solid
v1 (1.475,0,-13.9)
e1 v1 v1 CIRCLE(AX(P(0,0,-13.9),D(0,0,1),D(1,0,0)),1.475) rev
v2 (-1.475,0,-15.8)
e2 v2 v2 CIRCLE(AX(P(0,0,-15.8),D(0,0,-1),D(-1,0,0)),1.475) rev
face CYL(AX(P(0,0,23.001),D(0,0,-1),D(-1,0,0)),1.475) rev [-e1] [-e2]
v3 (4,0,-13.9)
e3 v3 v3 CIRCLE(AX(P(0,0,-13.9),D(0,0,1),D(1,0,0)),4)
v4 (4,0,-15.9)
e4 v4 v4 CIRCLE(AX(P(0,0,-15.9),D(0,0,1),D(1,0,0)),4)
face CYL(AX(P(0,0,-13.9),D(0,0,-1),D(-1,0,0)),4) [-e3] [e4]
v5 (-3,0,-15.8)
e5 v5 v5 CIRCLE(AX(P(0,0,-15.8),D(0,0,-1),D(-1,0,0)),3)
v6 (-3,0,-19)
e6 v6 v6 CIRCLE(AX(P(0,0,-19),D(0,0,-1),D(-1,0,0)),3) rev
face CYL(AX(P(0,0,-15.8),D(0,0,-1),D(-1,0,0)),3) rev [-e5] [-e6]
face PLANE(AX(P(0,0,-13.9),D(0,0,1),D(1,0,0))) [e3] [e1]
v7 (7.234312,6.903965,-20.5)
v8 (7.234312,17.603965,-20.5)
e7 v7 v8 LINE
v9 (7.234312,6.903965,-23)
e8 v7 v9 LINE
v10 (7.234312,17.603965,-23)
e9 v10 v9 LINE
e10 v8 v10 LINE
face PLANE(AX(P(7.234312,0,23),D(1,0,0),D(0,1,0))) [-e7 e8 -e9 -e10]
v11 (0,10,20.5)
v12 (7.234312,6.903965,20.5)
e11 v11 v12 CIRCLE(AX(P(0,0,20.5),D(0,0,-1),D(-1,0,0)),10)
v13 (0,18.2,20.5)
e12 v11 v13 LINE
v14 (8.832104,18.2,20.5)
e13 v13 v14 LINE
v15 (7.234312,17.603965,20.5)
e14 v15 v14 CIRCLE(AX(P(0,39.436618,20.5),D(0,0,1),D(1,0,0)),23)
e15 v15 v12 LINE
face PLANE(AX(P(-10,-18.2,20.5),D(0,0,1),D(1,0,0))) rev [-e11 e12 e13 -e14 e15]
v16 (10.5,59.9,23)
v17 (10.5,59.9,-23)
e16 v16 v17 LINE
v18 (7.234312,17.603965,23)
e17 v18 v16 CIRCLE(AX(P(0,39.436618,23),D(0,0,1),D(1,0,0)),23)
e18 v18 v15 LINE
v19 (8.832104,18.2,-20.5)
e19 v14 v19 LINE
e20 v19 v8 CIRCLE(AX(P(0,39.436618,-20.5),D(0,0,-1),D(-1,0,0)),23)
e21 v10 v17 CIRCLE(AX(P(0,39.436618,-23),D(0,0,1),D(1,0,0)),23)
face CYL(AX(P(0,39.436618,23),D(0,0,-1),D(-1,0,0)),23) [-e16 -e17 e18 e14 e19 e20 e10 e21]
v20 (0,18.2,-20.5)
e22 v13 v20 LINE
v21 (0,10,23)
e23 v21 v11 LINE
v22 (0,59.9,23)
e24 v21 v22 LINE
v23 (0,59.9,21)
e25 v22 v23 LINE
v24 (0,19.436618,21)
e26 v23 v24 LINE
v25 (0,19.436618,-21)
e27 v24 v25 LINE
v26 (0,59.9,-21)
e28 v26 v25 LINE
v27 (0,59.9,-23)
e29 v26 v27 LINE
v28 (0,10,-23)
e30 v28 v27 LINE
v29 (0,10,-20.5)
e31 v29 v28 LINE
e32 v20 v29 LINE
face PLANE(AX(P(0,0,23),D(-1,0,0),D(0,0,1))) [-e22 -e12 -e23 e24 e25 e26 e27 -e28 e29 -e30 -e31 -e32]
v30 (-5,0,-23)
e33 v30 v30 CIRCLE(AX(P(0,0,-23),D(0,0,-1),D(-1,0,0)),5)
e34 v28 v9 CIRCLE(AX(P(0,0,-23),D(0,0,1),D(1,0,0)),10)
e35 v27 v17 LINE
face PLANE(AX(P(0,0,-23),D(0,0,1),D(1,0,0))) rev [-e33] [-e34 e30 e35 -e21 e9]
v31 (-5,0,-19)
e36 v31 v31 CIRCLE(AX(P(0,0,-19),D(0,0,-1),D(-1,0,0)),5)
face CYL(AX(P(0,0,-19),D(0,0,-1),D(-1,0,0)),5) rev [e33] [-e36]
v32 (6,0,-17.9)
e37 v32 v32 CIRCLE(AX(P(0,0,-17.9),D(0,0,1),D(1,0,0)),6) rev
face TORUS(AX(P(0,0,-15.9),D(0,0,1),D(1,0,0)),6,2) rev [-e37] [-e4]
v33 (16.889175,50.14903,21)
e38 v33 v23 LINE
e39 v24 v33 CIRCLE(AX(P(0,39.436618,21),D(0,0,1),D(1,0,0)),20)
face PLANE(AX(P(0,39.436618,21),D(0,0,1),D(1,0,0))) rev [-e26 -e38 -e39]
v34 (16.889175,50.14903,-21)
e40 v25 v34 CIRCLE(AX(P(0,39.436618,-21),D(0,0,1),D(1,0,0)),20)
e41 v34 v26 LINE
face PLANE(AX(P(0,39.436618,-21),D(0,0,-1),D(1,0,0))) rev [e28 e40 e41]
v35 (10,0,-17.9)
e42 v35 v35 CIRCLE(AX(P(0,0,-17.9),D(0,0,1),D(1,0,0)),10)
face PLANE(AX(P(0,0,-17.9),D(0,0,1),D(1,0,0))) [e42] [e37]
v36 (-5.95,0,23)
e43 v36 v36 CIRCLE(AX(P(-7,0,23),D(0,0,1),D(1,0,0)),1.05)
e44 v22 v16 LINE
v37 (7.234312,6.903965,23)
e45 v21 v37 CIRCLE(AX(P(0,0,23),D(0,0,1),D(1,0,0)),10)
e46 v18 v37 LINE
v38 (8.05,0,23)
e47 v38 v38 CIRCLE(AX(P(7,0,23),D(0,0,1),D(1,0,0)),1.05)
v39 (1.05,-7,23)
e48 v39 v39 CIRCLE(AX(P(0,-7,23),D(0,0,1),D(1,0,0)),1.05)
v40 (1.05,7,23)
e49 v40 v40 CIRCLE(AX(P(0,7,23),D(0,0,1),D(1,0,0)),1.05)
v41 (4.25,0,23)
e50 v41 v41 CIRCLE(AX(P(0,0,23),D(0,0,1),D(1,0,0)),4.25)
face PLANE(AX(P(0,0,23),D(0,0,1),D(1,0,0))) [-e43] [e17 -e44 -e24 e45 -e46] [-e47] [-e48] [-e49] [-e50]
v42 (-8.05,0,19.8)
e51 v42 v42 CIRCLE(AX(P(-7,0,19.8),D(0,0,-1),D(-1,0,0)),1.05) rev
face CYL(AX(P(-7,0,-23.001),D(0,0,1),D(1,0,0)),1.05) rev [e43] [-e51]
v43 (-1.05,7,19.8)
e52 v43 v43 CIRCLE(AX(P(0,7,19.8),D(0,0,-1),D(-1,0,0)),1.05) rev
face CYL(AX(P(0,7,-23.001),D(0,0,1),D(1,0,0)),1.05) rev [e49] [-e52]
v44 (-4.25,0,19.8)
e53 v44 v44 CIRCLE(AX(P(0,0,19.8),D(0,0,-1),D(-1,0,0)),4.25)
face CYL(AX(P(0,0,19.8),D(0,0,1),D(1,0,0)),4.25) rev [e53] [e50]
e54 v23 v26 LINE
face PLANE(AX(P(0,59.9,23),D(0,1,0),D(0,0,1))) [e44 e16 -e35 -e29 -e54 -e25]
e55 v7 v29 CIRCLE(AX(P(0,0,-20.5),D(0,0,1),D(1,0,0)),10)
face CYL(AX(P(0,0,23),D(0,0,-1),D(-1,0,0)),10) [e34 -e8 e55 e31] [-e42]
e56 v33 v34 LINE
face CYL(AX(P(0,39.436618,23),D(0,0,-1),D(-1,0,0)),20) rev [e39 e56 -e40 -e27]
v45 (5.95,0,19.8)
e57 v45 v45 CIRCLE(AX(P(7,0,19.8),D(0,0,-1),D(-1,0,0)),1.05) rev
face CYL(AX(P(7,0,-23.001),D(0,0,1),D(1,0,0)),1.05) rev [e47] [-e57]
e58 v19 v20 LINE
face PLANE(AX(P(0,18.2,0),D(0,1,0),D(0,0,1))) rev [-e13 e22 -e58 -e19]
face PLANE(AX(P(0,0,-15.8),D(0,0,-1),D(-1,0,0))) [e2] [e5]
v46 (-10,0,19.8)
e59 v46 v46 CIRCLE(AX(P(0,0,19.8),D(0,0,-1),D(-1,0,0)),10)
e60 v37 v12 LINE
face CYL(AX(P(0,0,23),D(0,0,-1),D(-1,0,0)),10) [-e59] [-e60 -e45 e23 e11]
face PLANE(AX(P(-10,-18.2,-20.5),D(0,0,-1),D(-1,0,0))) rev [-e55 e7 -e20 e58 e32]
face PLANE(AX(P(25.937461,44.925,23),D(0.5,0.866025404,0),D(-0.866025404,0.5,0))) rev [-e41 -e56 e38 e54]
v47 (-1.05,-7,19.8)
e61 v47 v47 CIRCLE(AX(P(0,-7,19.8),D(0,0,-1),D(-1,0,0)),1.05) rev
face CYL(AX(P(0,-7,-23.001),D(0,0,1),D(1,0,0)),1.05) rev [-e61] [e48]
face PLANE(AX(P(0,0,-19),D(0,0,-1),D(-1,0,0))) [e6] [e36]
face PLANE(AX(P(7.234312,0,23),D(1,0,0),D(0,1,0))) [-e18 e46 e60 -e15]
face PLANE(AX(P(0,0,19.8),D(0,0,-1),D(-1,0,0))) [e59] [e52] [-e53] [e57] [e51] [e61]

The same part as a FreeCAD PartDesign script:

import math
import FreeCAD as App
import Part
import Sketcher

V = App.Vector
Q = App.Units.Quantity


def edges_at(feature, points):
    """Names of the edges that pass closest to the given points."""
    edges = feature.Shape.Edges
    near = lambda p: min(range(len(edges)), key=lambda i: edges[i].distToShape(Part.Vertex(*p))[0])
    return sorted({f"Edge{near(p) + 1}" for p in points})

doc = App.newDocument("Part")
params = doc.addObject("Spreadsheet::Sheet", "Params")
for row, (alias, value) in enumerate([
    ("sketch1_radius", "20 mm"),
    ("sketch1_radius2", "10 mm"),
    ("sketch1_radius3", "23 mm"),
    ("sketch1_width", "10.5 mm"),
    ("sketch1_height", "10.7 mm"),
    ("pad1_length", "46 mm"),
    ("sketch2_radius", "20 mm"),
    ("pad2_length", "2 mm"),
    ("sketch3_width", "20 mm"),
    ("sketch3_height", "41 mm"),
    ("pocket1_length", "36.4 mm"),
    ("sketch4_diameter", "20 mm"),
    ("sketch4_diameter2", "8.5 mm"),
    ("pad3_length", "0.7 mm"),
    ("sketch5_diameter", "2.1 mm"),
    ("sketch6_diameter", "2.1 mm"),
    ("sketch7_diameter", "2.1 mm"),
    ("sketch8_diameter", "2.1 mm"),
    ("sketch9_diameter", "8.5 mm"),
    ("sketch10_diameter", "20 mm"),
    ("pad4_length", "6.1 mm"),
    ("sketch11_diameter", "8 mm"),
    ("pad5_length", "0.5 mm"),
    ("sketch12_diameter", "6 mm"),
    ("pocket7_length", "7.2 mm"),
    ("sketch13_diameter", "2.95 mm"),
    ("pocket8_length", "9.1 mm"),
    ("sketch14_diameter", "10 mm"),
    ("pocket9_length", "4 mm"),
    ("sketch15_diameter", "20 mm"),
    ("sketch15_diameter2", "8 mm"),
    ("pocket10_length", "3.5 mm"),
    ("fillet_radius", "2 mm"),
], start=1):
    params.set(f"A{row}", alias)
    params.set(f"B{row}", "=" + value)
    params.setAlias(f"B{row}", alias)

body = doc.addObject("PartDesign::Body", "Body")

# Sketch on XY plane
sketch1 = body.newObject("Sketcher::SketchObject", "Sketch")
sketch1.AttachmentSupport = (doc.getObject("XY_Plane"), [""])
sketch1.MapMode = "FlatFace"
sketch1.addGeometry(Part.LineSegment(V(0, 60, 0), V(17, 50, 0)), False)
sketch1.addGeometry(Part.ArcOfCircle(Part.Circle(V(0, 39, 0), V(0, 0, 1), 20), math.radians(-90), math.radians(32)), False)
sketch1.addGeometry(Part.LineSegment(V(0, 19, 0), V(0, 10, 0)), False)
sketch1.addGeometry(Part.ArcOfCircle(Part.Circle(V(0, 0, 0), V(0, 0, 1), 10), math.radians(90), math.radians(404)), False)
sketch1.addGeometry(Part.LineSegment(V(7, 7, 0), V(7, 18, 0)), False)
sketch1.addGeometry(Part.ArcOfCircle(Part.Circle(V(0, 39, 0), V(0, 0, 1), 23), math.radians(-72), math.radians(63)), False)
sketch1.addGeometry(Part.LineSegment(V(10, 60, 0), V(0, 60, 0)), False)
sketch1.addConstraint(Sketcher.Constraint("Coincident", 0, 2, 1, 2))
sketch1.addConstraint(Sketcher.Constraint("Coincident", 1, 1, 2, 1))
sketch1.addConstraint(Sketcher.Constraint("Coincident", 2, 2, 3, 1))
sketch1.addConstraint(Sketcher.Constraint("Coincident", 3, 2, 4, 1))
sketch1.addConstraint(Sketcher.Constraint("Coincident", 4, 2, 5, 1))
sketch1.addConstraint(Sketcher.Constraint("Coincident", 5, 2, 6, 1))
sketch1.addConstraint(Sketcher.Constraint("Coincident", 6, 2, 0, 1))
sketch1.addConstraint(Sketcher.Constraint("Vertical", 2))
sketch1.addConstraint(Sketcher.Constraint("Vertical", 4))
sketch1.addConstraint(Sketcher.Constraint("Horizontal", 6))
sketch1.addConstraint(Sketcher.Constraint("Coincident", 3, 3, -1, 1))
sketch1.addConstraint(Sketcher.Constraint("Coincident", 5, 3, 1, 3))
sketch1.addConstraint(Sketcher.Constraint("PointOnObject", 1, 3, -2))
sketch1.addConstraint(Sketcher.Constraint("PointOnObject", 1, 1, -2))
sketch1.addConstraint(Sketcher.Constraint("PointOnObject", 6, 2, -2))
sketch1.addConstraint(Sketcher.Constraint("Radius", 1, 20.0))
sketch1.addConstraint(Sketcher.Constraint("Radius", 3, 10.0))
sketch1.addConstraint(Sketcher.Constraint("Radius", 5, 23.0))
sketch1.addConstraint(Sketcher.Constraint("Angle", 0, Q("-30 deg")))
sketch1.addConstraint(Sketcher.Constraint("DistanceX", 6, 2, 6, 1, 10.5))
sketch1.addConstraint(Sketcher.Constraint("DistanceY", 4, 1, 4, 2, 10.7))
sketch1.addConstraint(Sketcher.Constraint("DistanceY", -1, 1, 5, 2, 59.9))
sketch1.setExpression("Constraints[15]", "Params.sketch1_radius")
sketch1.setExpression("Constraints[16]", "Params.sketch1_radius2")
sketch1.setExpression("Constraints[17]", "Params.sketch1_radius3")
sketch1.setExpression("Constraints[19]", "Params.sketch1_width")
sketch1.setExpression("Constraints[20]", "Params.sketch1_height")
pad1 = body.newObject("PartDesign::Pad", "Pad")
pad1.Profile = sketch1
pad1.setExpression("Length", "Params.pad1_length")
pad1.Midplane = True

# Sketch on XY plane
sketch2 = body.newObject("Sketcher::SketchObject", "Sketch001")
sketch2.AttachmentSupport = (doc.getObject("XY_Plane"), [""])
sketch2.MapMode = "FlatFace"
sketch2.AttachmentOffset = App.Placement(V(0, 0, 23), App.Rotation())
sketch2.addGeometry(Part.LineSegment(V(0, 60, 0), V(0, 19, 0)), False)
sketch2.addGeometry(Part.ArcOfCircle(Part.Circle(V(0, 39, 0), V(0, 0, 1), 20), math.radians(-90), math.radians(32)), False)
sketch2.addGeometry(Part.LineSegment(V(17, 50, 0), V(0, 60, 0)), False)
sketch2.addConstraint(Sketcher.Constraint("Coincident", 0, 2, 1, 1))
sketch2.addConstraint(Sketcher.Constraint("Coincident", 1, 2, 2, 1))
sketch2.addConstraint(Sketcher.Constraint("Coincident", 2, 2, 0, 1))
sketch2.addConstraint(Sketcher.Constraint("Vertical", 0))
sketch2.addConstraint(Sketcher.Constraint("PointOnObject", 1, 3, -2))
sketch2.addConstraint(Sketcher.Constraint("PointOnObject", 0, 2, -2))
sketch2.addConstraint(Sketcher.Constraint("Radius", 1, 20.0))
sketch2.addConstraint(Sketcher.Constraint("Angle", 2, Q("150 deg")))
sketch2.addConstraint(Sketcher.Constraint("DistanceY", -1, 1, 2, 2, 59.9))
sketch2.addConstraint(Sketcher.Constraint("DistanceY", 0, 2, 0, 1, 40.463382))
sketch2.setExpression("Constraints[6]", "Params.sketch2_radius")
pad2 = body.newObject("PartDesign::Pad", "Pad001")
pad2.Profile = sketch2
pad2.setExpression("Length", "Params.pad2_length")
pad2.Reversed = True
doc.recompute()

mirrored = body.newObject("PartDesign::Mirrored", "Mirrored")
mirrored.Originals = [pad2]
mirrored.MirrorPlane = (doc.getObject("XY_Plane"), [""])
body.Tip = mirrored

# Sketch on XZ plane
sketch3 = body.newObject("Sketcher::SketchObject", "Sketch002")
sketch3.AttachmentSupport = (doc.getObject("XZ_Plane"), [""])
sketch3.MapMode = "FlatFace"
sketch3.addGeometry(Part.LineSegment(V(-10, -20, 0), V(-10, 20, 0)), False)
sketch3.addGeometry(Part.LineSegment(V(-10, 20, 0), V(10, 20, 0)), False)
sketch3.addGeometry(Part.LineSegment(V(10, 20, 0), V(10, -20, 0)), False)
sketch3.addGeometry(Part.LineSegment(V(10, -20, 0), V(-10, -20, 0)), False)
sketch3.addConstraint(Sketcher.Constraint("Coincident", 0, 2, 1, 1))
sketch3.addConstraint(Sketcher.Constraint("Coincident", 1, 2, 2, 1))
sketch3.addConstraint(Sketcher.Constraint("Coincident", 2, 2, 3, 1))
sketch3.addConstraint(Sketcher.Constraint("Coincident", 3, 2, 0, 1))
sketch3.addConstraint(Sketcher.Constraint("Vertical", 0))
sketch3.addConstraint(Sketcher.Constraint("Horizontal", 1))
sketch3.addConstraint(Sketcher.Constraint("Vertical", 2))
sketch3.addConstraint(Sketcher.Constraint("Horizontal", 3))
sketch3.addConstraint(Sketcher.Constraint("Symmetric", 0, 2, 2, 2, -1, 1))
sketch3.addConstraint(Sketcher.Constraint("DistanceX", 1, 1, 1, 2, 20.0))
sketch3.addConstraint(Sketcher.Constraint("DistanceY", 0, 1, 0, 2, 41.0))
sketch3.setExpression("Constraints[9]", "Params.sketch3_width")
sketch3.setExpression("Constraints[10]", "Params.sketch3_height")
pocket1 = body.newObject("PartDesign::Pocket", "Pocket")
pocket1.Profile = sketch3
pocket1.setExpression("Length", "Params.pocket1_length")
pocket1.Midplane = True

# Sketch on XY plane
sketch4 = body.newObject("Sketcher::SketchObject", "Sketch003")
sketch4.AttachmentSupport = (doc.getObject("XY_Plane"), [""])
sketch4.MapMode = "FlatFace"
sketch4.AttachmentOffset = App.Placement(V(0, 0, 20.5), App.Rotation())
sketch4.addGeometry(Part.Circle(V(0, 0, 0), V(0, 0, 1), 10), False)
sketch4.addGeometry(Part.Circle(V(0, 0, 0), V(0, 0, 1), 4.2), False)
sketch4.addConstraint(Sketcher.Constraint("Coincident", 0, 3, -1, 1))
sketch4.addConstraint(Sketcher.Constraint("Coincident", 1, 3, -1, 1))
sketch4.addConstraint(Sketcher.Constraint("Diameter", 0, 20.0))
sketch4.addConstraint(Sketcher.Constraint("Diameter", 1, 8.5))
sketch4.setExpression("Constraints[2]", "Params.sketch4_diameter")
sketch4.setExpression("Constraints[3]", "Params.sketch4_diameter2")
pad3 = body.newObject("PartDesign::Pad", "Pad002")
pad3.Profile = sketch4
pad3.setExpression("Length", "Params.pad3_length")
pad3.Reversed = True

# Sketch on XY plane
sketch5 = body.newObject("Sketcher::SketchObject", "Sketch004")
sketch5.AttachmentSupport = (doc.getObject("XY_Plane"), [""])
sketch5.MapMode = "FlatFace"
sketch5.AttachmentOffset = App.Placement(V(0, 0, 23), App.Rotation())
sketch5.addGeometry(Part.Circle(V(0, 7, 0), V(0, 0, 1), 1.1), False)
sketch5.addConstraint(Sketcher.Constraint("PointOnObject", 0, 3, -2))
sketch5.addConstraint(Sketcher.Constraint("Diameter", 0, 2.1))
sketch5.addConstraint(Sketcher.Constraint("DistanceY", -1, 1, 0, 3, 7.0))
sketch5.setExpression("Constraints[1]", "Params.sketch5_diameter")
pocket2 = body.newObject("PartDesign::Pocket", "Pocket001")
pocket2.Profile = sketch5
pocket2.Type = "UpToFirst"

# Sketch on XY plane
sketch6 = body.newObject("Sketcher::SketchObject", "Sketch005")
sketch6.AttachmentSupport = (doc.getObject("XY_Plane"), [""])
sketch6.MapMode = "FlatFace"
sketch6.AttachmentOffset = App.Placement(V(0, 0, 23), App.Rotation())
sketch6.addGeometry(Part.Circle(V(7, 0, 0), V(0, 0, 1), 1.1), False)
sketch6.addConstraint(Sketcher.Constraint("PointOnObject", 0, 3, -1))
sketch6.addConstraint(Sketcher.Constraint("Diameter", 0, 2.1))
sketch6.addConstraint(Sketcher.Constraint("DistanceX", -1, 1, 0, 3, 7.0))
sketch6.setExpression("Constraints[1]", "Params.sketch6_diameter")
pocket3 = body.newObject("PartDesign::Pocket", "Pocket002")
pocket3.Profile = sketch6
pocket3.Type = "UpToFirst"

# Sketch on XY plane
sketch7 = body.newObject("Sketcher::SketchObject", "Sketch006")
sketch7.AttachmentSupport = (doc.getObject("XY_Plane"), [""])
sketch7.MapMode = "FlatFace"
sketch7.AttachmentOffset = App.Placement(V(0, 0, 23), App.Rotation())
sketch7.addGeometry(Part.Circle(V(0, -7, 0), V(0, 0, 1), 1.1), False)
sketch7.addConstraint(Sketcher.Constraint("PointOnObject", 0, 3, -2))
sketch7.addConstraint(Sketcher.Constraint("Diameter", 0, 2.1))
sketch7.addConstraint(Sketcher.Constraint("DistanceY", 0, 3, -1, 1, 7.0))
sketch7.setExpression("Constraints[1]", "Params.sketch7_diameter")
pocket4 = body.newObject("PartDesign::Pocket", "Pocket003")
pocket4.Profile = sketch7
pocket4.Type = "UpToFirst"

# Sketch on XY plane
sketch8 = body.newObject("Sketcher::SketchObject", "Sketch007")
sketch8.AttachmentSupport = (doc.getObject("XY_Plane"), [""])
sketch8.MapMode = "FlatFace"
sketch8.AttachmentOffset = App.Placement(V(0, 0, 23), App.Rotation())
sketch8.addGeometry(Part.Circle(V(-7, 0, 0), V(0, 0, 1), 1.1), False)
sketch8.addConstraint(Sketcher.Constraint("PointOnObject", 0, 3, -1))
sketch8.addConstraint(Sketcher.Constraint("Diameter", 0, 2.1))
sketch8.addConstraint(Sketcher.Constraint("DistanceX", 0, 3, -1, 1, 7.0))
sketch8.setExpression("Constraints[1]", "Params.sketch8_diameter")
pocket5 = body.newObject("PartDesign::Pocket", "Pocket004")
pocket5.Profile = sketch8
pocket5.Type = "UpToFirst"

# Sketch on XY plane
sketch9 = body.newObject("Sketcher::SketchObject", "Sketch008")
sketch9.AttachmentSupport = (doc.getObject("XY_Plane"), [""])
sketch9.MapMode = "FlatFace"
sketch9.AttachmentOffset = App.Placement(V(0, 0, 23), App.Rotation())
sketch9.addGeometry(Part.Circle(V(0, 0, 0), V(0, 0, 1), 4.2), False)
sketch9.addConstraint(Sketcher.Constraint("Coincident", 0, 3, -1, 1))
sketch9.addConstraint(Sketcher.Constraint("Diameter", 0, 8.5))
sketch9.setExpression("Constraints[1]", "Params.sketch9_diameter")
pocket6 = body.newObject("PartDesign::Pocket", "Pocket005")
pocket6.Profile = sketch9
pocket6.Type = "UpToFirst"

# Sketch on XY plane
sketch10 = body.newObject("Sketcher::SketchObject", "Sketch009")
sketch10.AttachmentSupport = (doc.getObject("XY_Plane"), [""])
sketch10.MapMode = "FlatFace"
sketch10.AttachmentOffset = App.Placement(V(0, 0, -14.4), App.Rotation())
sketch10.addGeometry(Part.Circle(V(0, 0, 0), V(0, 0, 1), 10), False)
sketch10.addConstraint(Sketcher.Constraint("Coincident", 0, 3, -1, 1))
sketch10.addConstraint(Sketcher.Constraint("Diameter", 0, 20.0))
sketch10.setExpression("Constraints[1]", "Params.sketch10_diameter")
pad4 = body.newObject("PartDesign::Pad", "Pad003")
pad4.Profile = sketch10
pad4.setExpression("Length", "Params.pad4_length")
pad4.Reversed = True

# Sketch on XY plane
sketch11 = body.newObject("Sketcher::SketchObject", "Sketch010")
sketch11.AttachmentSupport = (doc.getObject("XY_Plane"), [""])
sketch11.MapMode = "FlatFace"
sketch11.AttachmentOffset = App.Placement(V(0, 0, -14.4), App.Rotation())
sketch11.addGeometry(Part.Circle(V(0, 0, 0), V(0, 0, 1), 4), False)
sketch11.addConstraint(Sketcher.Constraint("Coincident", 0, 3, -1, 1))
sketch11.addConstraint(Sketcher.Constraint("Diameter", 0, 8.0))
sketch11.setExpression("Constraints[1]", "Params.sketch11_diameter")
pad5 = body.newObject("PartDesign::Pad", "Pad004")
pad5.Profile = sketch11
pad5.setExpression("Length", "Params.pad5_length")

# Sketch on XY plane
sketch12 = body.newObject("Sketcher::SketchObject", "Sketch011")
sketch12.AttachmentSupport = (doc.getObject("XY_Plane"), [""])
sketch12.MapMode = "FlatFace"
sketch12.AttachmentOffset = App.Placement(V(0, 0, -23), App.Rotation())
sketch12.addGeometry(Part.Circle(V(0, 0, 0), V(0, 0, 1), 3), False)
sketch12.addConstraint(Sketcher.Constraint("Coincident", 0, 3, -1, 1))
sketch12.addConstraint(Sketcher.Constraint("Diameter", 0, 6.0))
sketch12.setExpression("Constraints[1]", "Params.sketch12_diameter")
pocket7 = body.newObject("PartDesign::Pocket", "Pocket006")
pocket7.Profile = sketch12
pocket7.setExpression("Length", "Params.pocket7_length")
pocket7.Reversed = True

# Sketch on XY plane
sketch13 = body.newObject("Sketcher::SketchObject", "Sketch012")
sketch13.AttachmentSupport = (doc.getObject("XY_Plane"), [""])
sketch13.MapMode = "FlatFace"
sketch13.AttachmentOffset = App.Placement(V(0, 0, -23), App.Rotation())
sketch13.addGeometry(Part.Circle(V(0, 0, 0), V(0, 0, 1), 1.5), False)
sketch13.addConstraint(Sketcher.Constraint("Coincident", 0, 3, -1, 1))
sketch13.addConstraint(Sketcher.Constraint("Diameter", 0, 2.95))
sketch13.setExpression("Constraints[1]", "Params.sketch13_diameter")
pocket8 = body.newObject("PartDesign::Pocket", "Pocket007")
pocket8.Profile = sketch13
pocket8.setExpression("Length", "Params.pocket8_length")
pocket8.Reversed = True

# Sketch on XY plane
sketch14 = body.newObject("Sketcher::SketchObject", "Sketch013")
sketch14.AttachmentSupport = (doc.getObject("XY_Plane"), [""])
sketch14.MapMode = "FlatFace"
sketch14.AttachmentOffset = App.Placement(V(0, 0, -23), App.Rotation())
sketch14.addGeometry(Part.Circle(V(0, 0, 0), V(0, 0, 1), 5), False)
sketch14.addConstraint(Sketcher.Constraint("Coincident", 0, 3, -1, 1))
sketch14.addConstraint(Sketcher.Constraint("Diameter", 0, 10.0))
sketch14.setExpression("Constraints[1]", "Params.sketch14_diameter")
pocket9 = body.newObject("PartDesign::Pocket", "Pocket008")
pocket9.Profile = sketch14
pocket9.setExpression("Length", "Params.pocket9_length")
pocket9.Reversed = True

# Sketch on XY plane
sketch15 = body.newObject("Sketcher::SketchObject", "Sketch014")
sketch15.AttachmentSupport = (doc.getObject("XY_Plane"), [""])
sketch15.MapMode = "FlatFace"
sketch15.AttachmentOffset = App.Placement(V(0, 0, -14.4), App.Rotation())
sketch15.addGeometry(Part.Circle(V(0, 0, 0), V(0, 0, 1), 10), False)
sketch15.addGeometry(Part.Circle(V(0, 0, 0), V(0, 0, 1), 4), False)
sketch15.addConstraint(Sketcher.Constraint("Coincident", 0, 3, -1, 1))
sketch15.addConstraint(Sketcher.Constraint("Coincident", 1, 3, -1, 1))
sketch15.addConstraint(Sketcher.Constraint("Diameter", 0, 20.0))
sketch15.addConstraint(Sketcher.Constraint("Diameter", 1, 8.0))
sketch15.setExpression("Constraints[2]", "Params.sketch15_diameter")
sketch15.setExpression("Constraints[3]", "Params.sketch15_diameter2")
pocket10 = body.newObject("PartDesign::Pocket", "Pocket009")
pocket10.Profile = sketch15
pocket10.setExpression("Length", "Params.pocket10_length")
doc.recompute()

fillet = body.newObject("PartDesign::Fillet", "Fillet")
fillet.Base = (pocket10, edges_at(pocket10, [(-4, 0, -17.9)]))
fillet.setExpression("Radius", "Params.fillet_radius")

doc.recompute()
